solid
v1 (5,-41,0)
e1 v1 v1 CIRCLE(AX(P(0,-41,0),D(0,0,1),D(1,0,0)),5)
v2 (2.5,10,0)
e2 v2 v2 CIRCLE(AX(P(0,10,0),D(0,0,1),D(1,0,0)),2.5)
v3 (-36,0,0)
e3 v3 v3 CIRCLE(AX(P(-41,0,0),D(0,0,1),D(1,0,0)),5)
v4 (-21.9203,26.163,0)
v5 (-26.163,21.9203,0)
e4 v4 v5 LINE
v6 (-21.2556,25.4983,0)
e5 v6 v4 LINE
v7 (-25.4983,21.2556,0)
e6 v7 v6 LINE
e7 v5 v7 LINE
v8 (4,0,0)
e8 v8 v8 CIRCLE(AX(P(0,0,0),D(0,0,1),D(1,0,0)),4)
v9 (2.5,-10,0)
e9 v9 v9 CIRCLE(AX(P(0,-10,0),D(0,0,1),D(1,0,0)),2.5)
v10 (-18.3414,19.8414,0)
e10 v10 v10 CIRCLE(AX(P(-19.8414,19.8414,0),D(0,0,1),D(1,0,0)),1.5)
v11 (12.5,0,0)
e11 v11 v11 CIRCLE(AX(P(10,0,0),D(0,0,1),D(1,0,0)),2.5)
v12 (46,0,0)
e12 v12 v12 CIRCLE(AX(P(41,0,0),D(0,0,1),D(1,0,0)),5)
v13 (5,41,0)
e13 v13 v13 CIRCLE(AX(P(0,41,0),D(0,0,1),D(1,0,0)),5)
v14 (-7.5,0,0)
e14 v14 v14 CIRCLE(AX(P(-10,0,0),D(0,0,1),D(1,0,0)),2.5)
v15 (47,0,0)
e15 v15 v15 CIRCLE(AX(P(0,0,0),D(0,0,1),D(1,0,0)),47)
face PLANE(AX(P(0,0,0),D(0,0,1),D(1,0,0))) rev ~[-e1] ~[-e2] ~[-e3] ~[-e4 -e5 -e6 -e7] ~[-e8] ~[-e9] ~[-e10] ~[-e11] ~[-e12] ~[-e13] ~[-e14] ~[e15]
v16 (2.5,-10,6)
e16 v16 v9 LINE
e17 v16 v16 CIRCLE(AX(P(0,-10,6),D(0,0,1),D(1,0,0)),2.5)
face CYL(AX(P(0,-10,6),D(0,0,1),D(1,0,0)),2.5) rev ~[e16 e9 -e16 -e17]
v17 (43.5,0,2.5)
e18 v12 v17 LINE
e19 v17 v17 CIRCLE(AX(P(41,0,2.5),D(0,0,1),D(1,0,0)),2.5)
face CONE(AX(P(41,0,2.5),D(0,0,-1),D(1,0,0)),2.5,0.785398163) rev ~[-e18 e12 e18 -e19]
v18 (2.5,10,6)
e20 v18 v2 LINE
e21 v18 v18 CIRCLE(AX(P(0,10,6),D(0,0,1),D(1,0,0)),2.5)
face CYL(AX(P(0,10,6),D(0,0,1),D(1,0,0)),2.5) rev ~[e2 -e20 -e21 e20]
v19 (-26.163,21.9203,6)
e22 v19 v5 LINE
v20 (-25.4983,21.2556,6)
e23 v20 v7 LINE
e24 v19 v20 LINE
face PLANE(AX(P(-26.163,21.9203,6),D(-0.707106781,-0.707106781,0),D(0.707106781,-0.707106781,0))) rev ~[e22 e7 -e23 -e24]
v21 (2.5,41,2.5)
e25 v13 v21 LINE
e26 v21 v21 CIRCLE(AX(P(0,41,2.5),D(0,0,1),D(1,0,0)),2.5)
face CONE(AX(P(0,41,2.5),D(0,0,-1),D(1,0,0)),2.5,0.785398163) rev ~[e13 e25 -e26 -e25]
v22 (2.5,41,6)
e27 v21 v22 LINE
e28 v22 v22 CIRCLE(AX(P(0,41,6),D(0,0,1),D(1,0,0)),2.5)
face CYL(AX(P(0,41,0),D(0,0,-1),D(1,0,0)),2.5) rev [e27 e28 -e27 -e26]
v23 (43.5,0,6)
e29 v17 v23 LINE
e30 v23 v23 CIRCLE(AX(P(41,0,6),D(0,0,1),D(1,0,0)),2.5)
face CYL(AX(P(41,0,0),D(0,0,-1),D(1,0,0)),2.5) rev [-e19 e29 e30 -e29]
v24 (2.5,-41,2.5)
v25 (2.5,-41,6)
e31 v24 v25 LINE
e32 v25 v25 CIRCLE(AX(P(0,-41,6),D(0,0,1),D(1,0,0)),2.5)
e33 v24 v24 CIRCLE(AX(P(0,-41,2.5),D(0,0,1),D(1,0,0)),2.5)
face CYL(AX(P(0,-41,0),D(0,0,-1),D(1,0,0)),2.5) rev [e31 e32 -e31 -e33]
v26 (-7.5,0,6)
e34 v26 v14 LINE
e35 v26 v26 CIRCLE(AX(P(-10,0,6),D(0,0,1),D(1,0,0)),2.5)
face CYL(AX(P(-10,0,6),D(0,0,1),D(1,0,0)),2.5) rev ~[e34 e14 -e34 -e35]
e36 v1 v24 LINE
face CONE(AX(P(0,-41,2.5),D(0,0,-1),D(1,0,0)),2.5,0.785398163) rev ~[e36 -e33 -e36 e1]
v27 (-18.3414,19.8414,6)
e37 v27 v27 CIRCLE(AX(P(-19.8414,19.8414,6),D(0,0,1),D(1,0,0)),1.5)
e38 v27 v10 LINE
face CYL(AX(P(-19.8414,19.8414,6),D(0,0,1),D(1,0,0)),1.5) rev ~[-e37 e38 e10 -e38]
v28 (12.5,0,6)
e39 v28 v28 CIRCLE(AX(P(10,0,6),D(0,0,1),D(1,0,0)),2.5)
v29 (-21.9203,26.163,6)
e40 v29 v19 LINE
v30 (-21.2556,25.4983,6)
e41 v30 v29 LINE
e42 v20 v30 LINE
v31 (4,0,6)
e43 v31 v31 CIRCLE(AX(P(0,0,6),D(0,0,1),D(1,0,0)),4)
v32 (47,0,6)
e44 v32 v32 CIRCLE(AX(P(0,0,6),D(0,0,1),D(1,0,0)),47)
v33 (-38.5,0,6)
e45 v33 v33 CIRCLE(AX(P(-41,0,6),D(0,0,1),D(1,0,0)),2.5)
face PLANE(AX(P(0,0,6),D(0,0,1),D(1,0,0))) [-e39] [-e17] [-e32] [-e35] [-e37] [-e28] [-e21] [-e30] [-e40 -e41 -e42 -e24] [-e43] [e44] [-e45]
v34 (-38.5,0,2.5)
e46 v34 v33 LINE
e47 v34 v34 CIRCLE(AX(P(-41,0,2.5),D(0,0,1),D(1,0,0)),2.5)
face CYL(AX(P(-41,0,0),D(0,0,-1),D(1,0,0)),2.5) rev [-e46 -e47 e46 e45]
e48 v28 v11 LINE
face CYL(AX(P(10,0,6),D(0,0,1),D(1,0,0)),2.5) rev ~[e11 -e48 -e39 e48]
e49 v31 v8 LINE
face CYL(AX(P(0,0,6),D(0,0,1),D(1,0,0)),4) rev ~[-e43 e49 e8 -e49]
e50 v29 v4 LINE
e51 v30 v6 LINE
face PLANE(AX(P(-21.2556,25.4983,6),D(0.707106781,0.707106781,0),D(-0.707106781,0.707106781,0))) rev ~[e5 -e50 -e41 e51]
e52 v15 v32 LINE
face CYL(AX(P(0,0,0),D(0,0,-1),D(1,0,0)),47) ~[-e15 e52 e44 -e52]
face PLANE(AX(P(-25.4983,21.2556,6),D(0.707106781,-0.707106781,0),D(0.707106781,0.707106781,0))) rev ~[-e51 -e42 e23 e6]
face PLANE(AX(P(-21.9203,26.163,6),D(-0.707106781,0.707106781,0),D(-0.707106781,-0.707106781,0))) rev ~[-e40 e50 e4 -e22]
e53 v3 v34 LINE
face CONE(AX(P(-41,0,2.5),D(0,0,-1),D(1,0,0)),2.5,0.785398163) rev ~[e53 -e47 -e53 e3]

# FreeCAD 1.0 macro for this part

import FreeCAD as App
import Part
import Sketcher

V = App.Vector
Q = App.Units.Quantity


def edges_at(feature, points):
    """Names of the edges that pass closest to the given points."""
    edges = feature.Shape.Edges
    near = lambda p: min(range(len(edges)), key=lambda i: edges[i].distToShape(Part.Vertex(*p))[0])
    return sorted({f"Edge{near(p) + 1}" for p in points})


def add_polygon(sketch, points):
    """Adds a closed chain of lines whose ends are joined by coincident constraints."""
    first, n = sketch.GeometryCount, len(points)
    for a, b in zip(points, points[1:] + points[:1]):
        sketch.addGeometry(Part.LineSegment(App.Vector(*a, 0), App.Vector(*b, 0)), False)
    for i in range(n):
        sketch.addConstraint(Sketcher.Constraint("Coincident", first + i, 2, first + (i + 1) % n, 1))

doc = App.newDocument("Part")
body = doc.addObject("PartDesign::Body", "Body")

# Sketch on XY plane
sketch1 = body.newObject("Sketcher::SketchObject", "Sketch")
sketch1.AttachmentSupport = (doc.getObject("XY_Plane"), [""])
sketch1.MapMode = "FlatFace"
sketch1.addGeometry([
    Part.Circle(V(0, 0, 0), V(0, 0, 1), 47),  # 0
    Part.Circle(V(0, -41, 0), V(0, 0, 1), 2.5),  # 1
    Part.Circle(V(-41, 0, 0), V(0, 0, 1), 2.5),  # 2
    Part.Circle(V(41, 0, 0), V(0, 0, 1), 2.5),  # 3
    Part.Circle(V(0, 41, 0), V(0, 0, 1), 2.5),  # 4
], False)
sketch1.addConstraint([
    Sketcher.Constraint("Coincident", 0, 3, -1, 1),
    Sketcher.Constraint("Equal", 1, 2),
    Sketcher.Constraint("Equal", 2, 3),
    Sketcher.Constraint("Equal", 3, 4),
    Sketcher.Constraint("Symmetric", 2, 3, 3, 3, -1, 1),
    Sketcher.Constraint("Symmetric", 1, 3, 4, 3, -1, 1),
    Sketcher.Constraint("PointOnObject", 1, 3, -2),
    Sketcher.Constraint("PointOnObject", 2, 3, -1),
    Sketcher.Constraint("Diameter", 1, Q("5 mm")),
    Sketcher.Constraint("Diameter", 0, Q("94 mm")),
    Sketcher.Constraint("DistanceY", 1, 3, -1, 1, Q("41 mm")),
    Sketcher.Constraint("DistanceX", 2, 3, -1, 1, Q("41 mm")),
])
pad1 = body.newObject("PartDesign::Pad", "Pad")
pad1.Profile = sketch1
pad1.Length = 6

# Sketch on XY plane
sketch2 = body.newObject("Sketcher::SketchObject", "Sketch001")
sketch2.AttachmentSupport = (doc.getObject("XY_Plane"), [""])
sketch2.MapMode = "FlatFace"
sketch2.AttachmentOffset = App.Placement(V(0, 0, 6), App.Rotation())
sketch2.addGeometry(Part.Circle(V(0, 0, 0), V(0, 0, 1), 4), False)
sketch2.addConstraint([
    Sketcher.Constraint("Coincident", 0, 3, -1, 1),
    Sketcher.Constraint("Diameter", 0, Q("8 mm")),
])
pocket1 = body.newObject("PartDesign::Pocket", "Pocket")
pocket1.Profile = sketch2
pocket1.Type = "ThroughAll"

# Sketch on XY plane
sketch3 = body.newObject("Sketcher::SketchObject", "Sketch002")
sketch3.AttachmentSupport = (doc.getObject("XY_Plane"), [""])
sketch3.MapMode = "FlatFace"
sketch3.AttachmentOffset = App.Placement(V(0, 0, 6), App.Rotation())
sketch3.addGeometry([
    Part.Circle(V(10, 0, 0), V(0, 0, 1), 2.5),
    Part.Circle(V(0, 10, 0), V(0, 0, 1), 2.5),
    Part.Circle(V(-10, 0, 0), V(0, 0, 1), 2.5),
    Part.Circle(V(0, -10, 0), V(0, 0, 1), 2.5),
], False)
sketch3.addConstraint([
    Sketcher.Constraint("Equal", 0, 1),
    Sketcher.Constraint("Equal", 1, 2),
    Sketcher.Constraint("Equal", 2, 3),
    Sketcher.Constraint("Symmetric", 0, 3, 2, 3, -1, 1),
    Sketcher.Constraint("Symmetric", 1, 3, 3, 3, -1, 1),
    Sketcher.Constraint("PointOnObject", 0, 3, -1),
    Sketcher.Constraint("PointOnObject", 1, 3, -2),
    Sketcher.Constraint("Diameter", 0, Q("5 mm")),
    Sketcher.Constraint("DistanceX", -1, 1, 0, 3, Q("10 mm")),
    Sketcher.Constraint("DistanceY", -1, 1, 1, 3, Q("10 mm")),
])
pocket2 = body.newObject("PartDesign::Pocket", "Pocket001")
pocket2.Profile = sketch3
pocket2.Type = "ThroughAll"

# Sketch on XY plane
sketch4 = body.newObject("Sketcher::SketchObject", "Sketch003")
sketch4.AttachmentSupport = (doc.getObject("XY_Plane"), [""])
sketch4.MapMode = "FlatFace"
sketch4.AttachmentOffset = App.Placement(V(0, 0, 6), App.Rotation())
sketch4.addGeometry(Part.Circle(V(-19.8414, 19.8414, 0), V(0, 0, 1), 1.5), False)  # 0
add_polygon(sketch4, [(-21.2556, 25.4983), (-21.9203, 26.163), (-26.163, 21.9203), (-25.4983, 21.2556)])  # lines 1-4
sketch4.addConstraint([
    Sketcher.Constraint("Perpendicular", 1, 2),
    Sketcher.Constraint("Perpendicular", 2, 3),
    Sketcher.Constraint("Perpendicular", 3, 4),
    Sketcher.Constraint("Diameter", 0, Q("3 mm")),
    Sketcher.Constraint("Angle", 1, Q("135 deg")),
    Sketcher.Constraint("Distance", 2, Q("6 mm")),
    Sketcher.Constraint("Distance", 1, Q("0.94 mm")),
    Sketcher.Constraint("DistanceY", -1, 1, 1, 2, Q("26.163 mm")),
    Sketcher.Constraint("DistanceX", 2, 2, -1, 1, Q("26.163 mm")),
    Sketcher.Constraint("DistanceX", 1, 2, 0, 3, Q("2.079 mm")),
    Sketcher.Constraint("DistanceY", 0, 3, 2, 2, Q("2.079 mm")),
])
pocket3 = body.newObject("PartDesign::Pocket", "Pocket002")
pocket3.Profile = sketch4
pocket3.Type = "ThroughAll"
doc.recompute()

chamfer = body.newObject("PartDesign::Chamfer", "Chamfer")
chamfer.Base = (pocket3, edges_at(pocket3, [
    (-2.5, -41, 0),
    (38.5, 0, 0),
    (-43.5, 0, 0),
    (-2.5, 41, 0),
]))
chamfer.Size = 2.5

doc.recompute()
